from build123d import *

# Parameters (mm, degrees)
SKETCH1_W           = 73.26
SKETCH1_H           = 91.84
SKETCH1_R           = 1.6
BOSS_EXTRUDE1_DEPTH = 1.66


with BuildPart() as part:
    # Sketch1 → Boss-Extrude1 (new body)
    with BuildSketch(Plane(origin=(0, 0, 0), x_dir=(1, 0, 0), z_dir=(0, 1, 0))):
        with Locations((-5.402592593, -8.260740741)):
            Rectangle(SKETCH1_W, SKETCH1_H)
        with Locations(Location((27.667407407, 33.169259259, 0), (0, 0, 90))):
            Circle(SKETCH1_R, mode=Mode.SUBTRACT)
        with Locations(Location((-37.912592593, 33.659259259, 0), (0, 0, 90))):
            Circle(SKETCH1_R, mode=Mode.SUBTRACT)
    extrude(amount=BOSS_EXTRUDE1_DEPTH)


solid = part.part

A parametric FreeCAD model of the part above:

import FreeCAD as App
import Part
import Sketcher
from FreeCAD import Vector
Q = App.Units.Quantity


def add_polygon(sketch, points):
    """Adds a closed chain of lines whose ends are joined by coincident constraints."""
    first, n = sketch.GeometryCount, len(points)
    for a, b in zip(points, points[1:] + points[:1]):
        sketch.addGeometry(Part.LineSegment(App.Vector(*a, 0), App.Vector(*b, 0)), False)
    for i in range(n):
        sketch.addConstraint(Sketcher.Constraint("Coincident", first + i, 2, first + (i + 1) % n, 1))

doc = App.newDocument("Part")
params = doc.addObject("Spreadsheet::Sheet", "Params")
for row, (alias, value) in enumerate([
    ("sketch1_diameter", "3.2 mm"),
    ("sketch1_width", "73.26 mm"),
    ("sketch1_height", "91.84 mm"),
    ("pad1_length", "1.66 mm"),
], start=1):
    params.set(f"A{row}", alias)
    params.set(f"B{row}", "=" + value)
    params.setAlias(f"B{row}", alias)

body = doc.addObject("PartDesign::Body", "Body")

# Sketch on XZ plane
sketch1 = body.newObject("Sketcher::SketchObject", "Sketch")
sketch1.AttachmentSupport = (doc.getObject("XZ_Plane"), [""])
sketch1.MapMode = "FlatFace"
add_polygon(sketch1, [(-42.032593, -37.659259), (-42.032593, 54.180741), (31.227407, 54.180741), (31.227407, -37.659259)])  # lines 0-3
sketch1.addGeometry(Part.Circle(Vector(27.667407, -33.169259, 0), Vector(0, 0, 1), 1.6), False)  # 4
sketch1.addGeometry(Part.Circle(Vector(-37.912593, -33.659259, 0), Vector(0, 0, 1), 1.6), False)  # 5
sketch1.addConstraint([
    Sketcher.Constraint("Vertical", 0),
    Sketcher.Constraint("Horizontal", 1),
    Sketcher.Constraint("Vertical", 2),
    Sketcher.Constraint("Horizontal", 3),
    Sketcher.Constraint("Equal", 4, 5),
    Sketcher.Constraint("Diameter", 4, Q("3.2 mm")),
    Sketcher.Constraint("DistanceY", 2, 2, 5, 3, Q("4 mm")),
    Sketcher.Constraint("DistanceX", 1, 1, 1, 2, Q("73.26 mm")),
    Sketcher.Constraint("DistanceY", 0, 1, 0, 2, Q("91.84 mm")),
    Sketcher.Constraint("DistanceX", 0, 2, 4, 3, Q("69.7 mm")),
    Sketcher.Constraint("DistanceX", 5, 3, 4, 3, Q("65.58 mm")),
    Sketcher.Constraint("DistanceY", 5, 3, 4, 3, Q("0.49 mm")),
    Sketcher.Constraint("DistanceY", 4, 3, -1, 1, Q("33.169259 mm")),
    Sketcher.Constraint("DistanceX", -1, 1, 4, 3, Q("27.667407 mm")),
])
sketch1.setExpression("Constraints[9]", "Params.sketch1_diameter")
sketch1.setExpression("Constraints[11]", "Params.sketch1_width")
sketch1.setExpression("Constraints[12]", "Params.sketch1_height")
pad1 = body.newObject("PartDesign::Pad", "Pad")
pad1.Profile = sketch1
pad1.setExpression("Length", "Params.pad1_length")
pad1.Reversed = True

doc.recompute()
